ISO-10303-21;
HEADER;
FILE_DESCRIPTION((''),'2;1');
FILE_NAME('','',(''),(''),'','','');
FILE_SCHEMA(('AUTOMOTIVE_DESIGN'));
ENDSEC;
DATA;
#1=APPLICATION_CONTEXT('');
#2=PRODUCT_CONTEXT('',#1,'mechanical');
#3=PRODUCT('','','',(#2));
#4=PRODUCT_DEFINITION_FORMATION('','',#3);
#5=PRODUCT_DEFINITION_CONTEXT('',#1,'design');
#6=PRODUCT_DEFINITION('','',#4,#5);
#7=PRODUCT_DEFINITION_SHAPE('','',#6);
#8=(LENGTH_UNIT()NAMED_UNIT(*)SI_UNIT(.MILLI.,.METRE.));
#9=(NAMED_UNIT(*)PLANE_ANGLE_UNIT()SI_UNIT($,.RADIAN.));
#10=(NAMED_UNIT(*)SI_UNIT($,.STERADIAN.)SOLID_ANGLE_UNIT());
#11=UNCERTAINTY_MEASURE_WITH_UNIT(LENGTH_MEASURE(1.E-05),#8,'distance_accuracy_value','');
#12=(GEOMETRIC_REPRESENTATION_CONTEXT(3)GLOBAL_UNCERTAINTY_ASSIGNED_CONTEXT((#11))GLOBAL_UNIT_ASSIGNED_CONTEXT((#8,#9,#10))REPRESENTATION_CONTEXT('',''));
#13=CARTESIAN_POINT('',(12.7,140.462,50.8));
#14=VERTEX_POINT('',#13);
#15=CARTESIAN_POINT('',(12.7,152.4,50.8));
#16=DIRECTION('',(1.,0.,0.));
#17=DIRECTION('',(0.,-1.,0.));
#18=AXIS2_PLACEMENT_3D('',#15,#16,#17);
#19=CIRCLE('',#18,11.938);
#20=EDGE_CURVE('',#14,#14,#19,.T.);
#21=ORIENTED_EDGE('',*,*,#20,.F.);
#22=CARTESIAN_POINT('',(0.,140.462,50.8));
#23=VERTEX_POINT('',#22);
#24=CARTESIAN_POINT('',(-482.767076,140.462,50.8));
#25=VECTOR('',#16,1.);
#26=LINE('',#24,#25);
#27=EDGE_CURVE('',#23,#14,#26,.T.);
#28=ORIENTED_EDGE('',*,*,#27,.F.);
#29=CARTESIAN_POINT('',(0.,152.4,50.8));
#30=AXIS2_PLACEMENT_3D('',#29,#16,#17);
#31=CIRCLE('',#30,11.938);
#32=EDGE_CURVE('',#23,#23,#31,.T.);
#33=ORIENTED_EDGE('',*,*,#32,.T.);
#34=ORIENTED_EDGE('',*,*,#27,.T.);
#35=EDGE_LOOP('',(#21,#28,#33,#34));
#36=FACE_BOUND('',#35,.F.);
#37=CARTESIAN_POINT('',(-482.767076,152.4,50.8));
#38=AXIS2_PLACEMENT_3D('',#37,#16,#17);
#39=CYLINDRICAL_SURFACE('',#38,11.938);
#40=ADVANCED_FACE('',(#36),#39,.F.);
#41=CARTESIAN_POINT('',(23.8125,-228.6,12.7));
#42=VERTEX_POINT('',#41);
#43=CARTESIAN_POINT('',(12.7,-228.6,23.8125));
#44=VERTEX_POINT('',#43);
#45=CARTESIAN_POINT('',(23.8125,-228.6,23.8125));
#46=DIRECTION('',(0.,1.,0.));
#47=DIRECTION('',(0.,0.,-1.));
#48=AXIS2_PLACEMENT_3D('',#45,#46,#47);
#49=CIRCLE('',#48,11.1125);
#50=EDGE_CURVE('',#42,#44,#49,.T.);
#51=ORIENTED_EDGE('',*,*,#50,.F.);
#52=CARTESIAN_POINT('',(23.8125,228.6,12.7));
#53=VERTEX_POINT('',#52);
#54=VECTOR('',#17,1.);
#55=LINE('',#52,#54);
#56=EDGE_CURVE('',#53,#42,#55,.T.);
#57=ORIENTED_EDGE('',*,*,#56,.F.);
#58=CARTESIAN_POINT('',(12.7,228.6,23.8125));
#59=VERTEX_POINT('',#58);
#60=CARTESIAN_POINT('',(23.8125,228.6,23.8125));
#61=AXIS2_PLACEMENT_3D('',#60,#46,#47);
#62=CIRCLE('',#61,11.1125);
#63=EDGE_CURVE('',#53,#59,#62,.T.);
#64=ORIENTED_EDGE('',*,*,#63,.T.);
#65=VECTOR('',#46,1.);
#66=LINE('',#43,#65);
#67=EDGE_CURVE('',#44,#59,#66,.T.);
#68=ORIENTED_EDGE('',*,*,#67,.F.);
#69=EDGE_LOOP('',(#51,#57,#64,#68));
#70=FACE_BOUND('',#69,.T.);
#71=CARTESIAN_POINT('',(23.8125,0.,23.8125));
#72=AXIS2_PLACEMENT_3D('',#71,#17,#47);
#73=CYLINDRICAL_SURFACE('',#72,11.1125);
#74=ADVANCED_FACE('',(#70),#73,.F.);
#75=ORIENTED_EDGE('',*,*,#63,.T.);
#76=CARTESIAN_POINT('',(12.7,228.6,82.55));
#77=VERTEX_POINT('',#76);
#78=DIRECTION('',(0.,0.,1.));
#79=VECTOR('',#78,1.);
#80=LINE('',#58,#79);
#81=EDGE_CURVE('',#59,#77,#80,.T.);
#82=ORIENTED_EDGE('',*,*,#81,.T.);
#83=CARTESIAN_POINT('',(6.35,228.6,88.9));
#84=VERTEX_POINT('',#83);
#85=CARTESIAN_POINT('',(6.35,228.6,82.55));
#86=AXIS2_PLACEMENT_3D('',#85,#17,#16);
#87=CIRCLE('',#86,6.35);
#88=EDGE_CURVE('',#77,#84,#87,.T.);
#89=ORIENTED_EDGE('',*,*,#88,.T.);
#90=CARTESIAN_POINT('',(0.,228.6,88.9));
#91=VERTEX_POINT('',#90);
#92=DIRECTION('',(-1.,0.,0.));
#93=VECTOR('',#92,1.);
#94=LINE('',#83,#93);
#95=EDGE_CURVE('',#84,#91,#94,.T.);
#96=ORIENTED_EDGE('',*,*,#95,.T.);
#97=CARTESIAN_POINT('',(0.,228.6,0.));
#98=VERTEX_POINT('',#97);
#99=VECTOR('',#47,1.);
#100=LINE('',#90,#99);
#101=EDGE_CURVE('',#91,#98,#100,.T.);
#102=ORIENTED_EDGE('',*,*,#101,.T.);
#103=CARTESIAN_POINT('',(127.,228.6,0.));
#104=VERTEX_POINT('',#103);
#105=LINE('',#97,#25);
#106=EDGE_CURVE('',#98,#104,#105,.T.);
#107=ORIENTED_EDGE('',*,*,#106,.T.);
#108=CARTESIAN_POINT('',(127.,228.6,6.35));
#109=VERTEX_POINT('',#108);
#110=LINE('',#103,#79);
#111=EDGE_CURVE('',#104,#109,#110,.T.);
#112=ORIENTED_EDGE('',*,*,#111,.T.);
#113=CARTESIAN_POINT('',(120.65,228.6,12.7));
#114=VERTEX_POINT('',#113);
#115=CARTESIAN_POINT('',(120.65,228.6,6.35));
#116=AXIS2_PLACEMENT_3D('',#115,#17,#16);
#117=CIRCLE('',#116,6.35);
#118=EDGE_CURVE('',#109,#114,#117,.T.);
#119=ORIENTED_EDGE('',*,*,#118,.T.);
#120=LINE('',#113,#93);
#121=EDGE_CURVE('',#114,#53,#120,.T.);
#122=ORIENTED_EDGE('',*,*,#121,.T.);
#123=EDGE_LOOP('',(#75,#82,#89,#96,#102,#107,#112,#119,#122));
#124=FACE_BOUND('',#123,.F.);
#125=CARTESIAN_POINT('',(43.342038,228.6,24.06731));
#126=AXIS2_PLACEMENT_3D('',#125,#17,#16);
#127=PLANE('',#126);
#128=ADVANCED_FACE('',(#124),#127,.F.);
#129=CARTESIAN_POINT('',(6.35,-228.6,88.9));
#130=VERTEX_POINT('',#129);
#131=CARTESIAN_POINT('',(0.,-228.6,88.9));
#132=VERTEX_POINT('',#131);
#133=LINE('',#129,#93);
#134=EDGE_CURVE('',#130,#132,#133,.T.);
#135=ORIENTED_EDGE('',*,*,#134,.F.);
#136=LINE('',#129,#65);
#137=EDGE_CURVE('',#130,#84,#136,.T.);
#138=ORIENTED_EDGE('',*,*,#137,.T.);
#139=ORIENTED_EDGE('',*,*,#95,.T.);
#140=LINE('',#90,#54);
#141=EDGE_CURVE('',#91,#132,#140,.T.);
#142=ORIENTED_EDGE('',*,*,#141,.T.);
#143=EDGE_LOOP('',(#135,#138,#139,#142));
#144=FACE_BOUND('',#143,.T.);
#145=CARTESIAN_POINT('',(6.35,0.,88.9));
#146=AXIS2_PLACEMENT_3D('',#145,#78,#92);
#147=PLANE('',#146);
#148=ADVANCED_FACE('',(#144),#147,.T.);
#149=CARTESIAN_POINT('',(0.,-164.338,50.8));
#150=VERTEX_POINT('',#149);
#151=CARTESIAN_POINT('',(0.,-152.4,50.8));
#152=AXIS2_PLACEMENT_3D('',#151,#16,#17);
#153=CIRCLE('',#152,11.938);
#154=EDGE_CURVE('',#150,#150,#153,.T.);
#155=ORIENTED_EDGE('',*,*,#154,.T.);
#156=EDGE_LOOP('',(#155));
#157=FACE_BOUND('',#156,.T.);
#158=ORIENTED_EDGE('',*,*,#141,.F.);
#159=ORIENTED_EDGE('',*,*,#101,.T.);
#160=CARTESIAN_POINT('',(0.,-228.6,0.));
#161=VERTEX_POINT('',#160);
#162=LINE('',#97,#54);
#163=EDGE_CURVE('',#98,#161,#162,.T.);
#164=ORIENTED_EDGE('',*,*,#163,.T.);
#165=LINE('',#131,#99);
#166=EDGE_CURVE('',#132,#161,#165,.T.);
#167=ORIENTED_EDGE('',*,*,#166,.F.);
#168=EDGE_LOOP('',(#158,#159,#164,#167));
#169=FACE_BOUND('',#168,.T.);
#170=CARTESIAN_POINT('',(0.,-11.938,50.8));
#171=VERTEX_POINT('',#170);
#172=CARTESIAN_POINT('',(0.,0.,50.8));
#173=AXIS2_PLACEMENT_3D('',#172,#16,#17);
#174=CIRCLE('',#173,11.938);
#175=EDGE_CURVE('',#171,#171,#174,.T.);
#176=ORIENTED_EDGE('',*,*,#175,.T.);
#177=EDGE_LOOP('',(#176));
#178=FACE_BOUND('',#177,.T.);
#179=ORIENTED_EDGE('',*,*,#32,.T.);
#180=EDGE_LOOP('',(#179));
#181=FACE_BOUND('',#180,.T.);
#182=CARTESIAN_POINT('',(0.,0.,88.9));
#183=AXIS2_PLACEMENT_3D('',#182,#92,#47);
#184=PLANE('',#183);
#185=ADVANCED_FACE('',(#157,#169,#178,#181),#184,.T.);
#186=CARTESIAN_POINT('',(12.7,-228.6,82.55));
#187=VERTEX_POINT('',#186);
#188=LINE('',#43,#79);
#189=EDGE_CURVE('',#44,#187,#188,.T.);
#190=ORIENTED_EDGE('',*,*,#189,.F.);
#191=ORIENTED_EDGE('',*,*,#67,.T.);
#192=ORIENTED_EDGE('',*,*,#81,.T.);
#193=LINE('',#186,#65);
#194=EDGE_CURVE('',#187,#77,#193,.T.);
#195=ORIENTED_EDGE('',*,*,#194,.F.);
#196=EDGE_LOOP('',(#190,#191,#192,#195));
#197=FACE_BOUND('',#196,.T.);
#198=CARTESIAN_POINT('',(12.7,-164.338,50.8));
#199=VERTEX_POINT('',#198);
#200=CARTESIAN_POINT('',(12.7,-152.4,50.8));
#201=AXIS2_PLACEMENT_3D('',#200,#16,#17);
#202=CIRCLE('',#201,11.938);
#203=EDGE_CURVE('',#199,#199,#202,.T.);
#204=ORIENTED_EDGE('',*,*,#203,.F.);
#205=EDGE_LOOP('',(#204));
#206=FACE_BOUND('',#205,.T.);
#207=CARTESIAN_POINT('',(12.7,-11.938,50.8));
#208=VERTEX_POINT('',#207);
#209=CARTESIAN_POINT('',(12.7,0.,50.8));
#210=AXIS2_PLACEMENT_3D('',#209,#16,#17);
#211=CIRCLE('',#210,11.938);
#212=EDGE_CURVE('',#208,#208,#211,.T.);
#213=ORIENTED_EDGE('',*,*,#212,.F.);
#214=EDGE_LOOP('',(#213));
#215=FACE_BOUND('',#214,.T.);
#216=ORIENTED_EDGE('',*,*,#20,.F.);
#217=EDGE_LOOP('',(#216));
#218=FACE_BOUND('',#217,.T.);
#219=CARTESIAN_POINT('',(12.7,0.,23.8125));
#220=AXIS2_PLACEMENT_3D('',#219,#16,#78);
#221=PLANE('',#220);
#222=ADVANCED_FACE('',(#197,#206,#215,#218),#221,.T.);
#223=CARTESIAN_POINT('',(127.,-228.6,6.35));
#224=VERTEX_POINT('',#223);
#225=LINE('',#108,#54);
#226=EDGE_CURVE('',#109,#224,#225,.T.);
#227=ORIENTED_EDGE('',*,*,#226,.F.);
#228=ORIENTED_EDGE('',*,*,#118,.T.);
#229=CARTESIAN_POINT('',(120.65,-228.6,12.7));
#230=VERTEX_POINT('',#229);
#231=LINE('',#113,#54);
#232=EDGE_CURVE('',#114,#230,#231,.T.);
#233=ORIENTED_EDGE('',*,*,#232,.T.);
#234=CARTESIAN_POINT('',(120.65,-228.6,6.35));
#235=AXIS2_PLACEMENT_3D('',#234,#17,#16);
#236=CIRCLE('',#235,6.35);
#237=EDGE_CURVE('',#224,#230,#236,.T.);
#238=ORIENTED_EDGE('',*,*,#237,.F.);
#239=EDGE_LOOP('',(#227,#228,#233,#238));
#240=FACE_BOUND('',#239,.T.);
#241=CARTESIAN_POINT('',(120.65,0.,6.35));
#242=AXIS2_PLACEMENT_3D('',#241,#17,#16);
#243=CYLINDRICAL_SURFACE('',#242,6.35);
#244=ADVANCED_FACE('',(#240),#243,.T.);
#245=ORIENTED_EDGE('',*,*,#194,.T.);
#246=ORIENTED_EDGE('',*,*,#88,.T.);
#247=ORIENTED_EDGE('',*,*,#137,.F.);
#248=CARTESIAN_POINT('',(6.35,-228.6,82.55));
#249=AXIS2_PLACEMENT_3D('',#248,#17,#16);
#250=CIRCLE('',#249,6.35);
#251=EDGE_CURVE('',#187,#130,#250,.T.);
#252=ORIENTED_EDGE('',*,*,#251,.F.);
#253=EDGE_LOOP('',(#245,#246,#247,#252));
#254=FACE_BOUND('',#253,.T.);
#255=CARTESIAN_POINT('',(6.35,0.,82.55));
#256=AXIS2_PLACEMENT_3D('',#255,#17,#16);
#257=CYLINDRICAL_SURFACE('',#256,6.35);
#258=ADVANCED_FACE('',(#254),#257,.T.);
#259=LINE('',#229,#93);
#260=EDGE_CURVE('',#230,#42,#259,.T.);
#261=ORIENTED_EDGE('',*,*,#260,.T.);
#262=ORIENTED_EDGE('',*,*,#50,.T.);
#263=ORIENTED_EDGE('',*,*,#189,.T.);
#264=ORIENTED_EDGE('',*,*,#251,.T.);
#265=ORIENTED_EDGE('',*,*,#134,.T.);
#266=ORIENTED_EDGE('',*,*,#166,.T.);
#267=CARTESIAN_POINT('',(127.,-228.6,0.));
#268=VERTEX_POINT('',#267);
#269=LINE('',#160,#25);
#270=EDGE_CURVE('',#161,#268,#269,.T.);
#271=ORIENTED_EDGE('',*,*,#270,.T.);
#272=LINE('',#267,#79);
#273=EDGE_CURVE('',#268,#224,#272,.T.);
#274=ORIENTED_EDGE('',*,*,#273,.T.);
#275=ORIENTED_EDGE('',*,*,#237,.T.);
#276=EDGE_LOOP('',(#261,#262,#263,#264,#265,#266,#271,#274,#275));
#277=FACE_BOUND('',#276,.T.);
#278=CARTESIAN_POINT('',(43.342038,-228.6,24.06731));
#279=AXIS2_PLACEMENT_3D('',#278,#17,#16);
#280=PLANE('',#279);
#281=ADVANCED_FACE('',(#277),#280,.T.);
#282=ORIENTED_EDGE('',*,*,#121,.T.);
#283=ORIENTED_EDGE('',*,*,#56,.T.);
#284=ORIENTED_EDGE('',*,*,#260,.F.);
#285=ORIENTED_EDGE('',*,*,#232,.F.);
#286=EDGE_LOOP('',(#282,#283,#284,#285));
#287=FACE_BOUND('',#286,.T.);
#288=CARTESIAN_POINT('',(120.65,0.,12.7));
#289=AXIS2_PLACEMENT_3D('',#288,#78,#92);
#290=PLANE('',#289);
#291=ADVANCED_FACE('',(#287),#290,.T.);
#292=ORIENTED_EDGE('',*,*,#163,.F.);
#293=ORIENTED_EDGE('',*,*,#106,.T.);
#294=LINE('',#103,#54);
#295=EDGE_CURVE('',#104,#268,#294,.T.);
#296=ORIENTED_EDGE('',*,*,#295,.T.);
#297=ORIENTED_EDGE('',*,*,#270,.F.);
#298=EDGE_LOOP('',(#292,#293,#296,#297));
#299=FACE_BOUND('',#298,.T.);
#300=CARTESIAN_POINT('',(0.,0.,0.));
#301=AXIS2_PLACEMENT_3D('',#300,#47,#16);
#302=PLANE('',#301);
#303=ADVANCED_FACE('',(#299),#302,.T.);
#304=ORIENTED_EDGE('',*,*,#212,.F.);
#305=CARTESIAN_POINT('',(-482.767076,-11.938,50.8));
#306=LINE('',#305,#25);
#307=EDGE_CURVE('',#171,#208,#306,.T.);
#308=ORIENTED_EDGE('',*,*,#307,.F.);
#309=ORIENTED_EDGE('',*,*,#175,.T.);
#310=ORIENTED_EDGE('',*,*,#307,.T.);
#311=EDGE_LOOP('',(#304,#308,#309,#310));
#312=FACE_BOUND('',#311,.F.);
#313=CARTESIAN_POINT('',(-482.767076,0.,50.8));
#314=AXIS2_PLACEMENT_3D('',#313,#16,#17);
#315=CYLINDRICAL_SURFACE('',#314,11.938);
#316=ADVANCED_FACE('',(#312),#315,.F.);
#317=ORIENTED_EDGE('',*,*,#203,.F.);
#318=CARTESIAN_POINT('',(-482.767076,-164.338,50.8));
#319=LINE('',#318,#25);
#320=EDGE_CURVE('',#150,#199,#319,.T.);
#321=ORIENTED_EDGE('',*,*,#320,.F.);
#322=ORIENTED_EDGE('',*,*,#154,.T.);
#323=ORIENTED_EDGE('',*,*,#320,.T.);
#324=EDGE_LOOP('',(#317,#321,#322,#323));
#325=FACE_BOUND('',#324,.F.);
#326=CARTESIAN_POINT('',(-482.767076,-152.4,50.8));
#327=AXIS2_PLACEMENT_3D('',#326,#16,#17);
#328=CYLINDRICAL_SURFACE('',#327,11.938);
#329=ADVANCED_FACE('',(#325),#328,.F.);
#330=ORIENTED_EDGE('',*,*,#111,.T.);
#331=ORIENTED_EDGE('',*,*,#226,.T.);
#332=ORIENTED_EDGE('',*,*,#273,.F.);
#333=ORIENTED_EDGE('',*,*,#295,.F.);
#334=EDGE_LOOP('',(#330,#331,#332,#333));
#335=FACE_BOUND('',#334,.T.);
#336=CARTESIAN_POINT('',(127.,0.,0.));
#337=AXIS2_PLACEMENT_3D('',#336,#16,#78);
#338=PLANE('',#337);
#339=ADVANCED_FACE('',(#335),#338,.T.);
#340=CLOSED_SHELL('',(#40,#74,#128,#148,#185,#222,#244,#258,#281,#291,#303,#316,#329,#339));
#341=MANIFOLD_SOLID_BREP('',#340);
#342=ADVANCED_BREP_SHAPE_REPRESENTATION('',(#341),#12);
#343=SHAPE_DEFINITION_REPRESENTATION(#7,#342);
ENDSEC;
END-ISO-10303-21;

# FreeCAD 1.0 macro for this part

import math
import FreeCAD as App
import Part
import Sketcher
Q = App.Units.Quantity

doc = App.newDocument("Part")
params = doc.addObject("Spreadsheet::Sheet", "Params")
for row, (alias, value) in enumerate([
    ("sketch1_width", "5 in"),
    ("sketch1_radius", "0.25 in"),
    ("sketch1_height", "3.5 in"),
    ("sketch1_radius2", "0.4375 in"),
    ("pad1_length", "18 in"),
    ("sketch2_diameter", "0.94 in"),
    ("hole_diameter", "0.94 in"),
], start=1):
    params.set(f"A{row}", alias)
    params.set(f"B{row}", "=" + value)
    params.setAlias(f"B{row}", alias)

body = doc.addObject("PartDesign::Body", "Body")

sketch1 = body.newObject("Sketcher::SketchObject", "Sketch")
sketch1.AttachmentSupport = (doc.getObject("XZ_Plane"), [""])
sketch1.MapMode = "FlatFace"
sketch1.addGeometry([
    Part.LineSegment(App.Vector(6, 89, 0), App.Vector(0, 89, 0)),
    Part.LineSegment(App.Vector(0, 89, 0), App.Vector(0, 0, 0)),
    Part.LineSegment(App.Vector(0, 0, 0), App.Vector(127, 0, 0)),
    Part.LineSegment(App.Vector(127, 0, 0), App.Vector(127, 6, 0)),
    Part.ArcOfCircle(Part.Circle(App.Vector(121, 6, 0), App.Vector(0, 0, 1), 6), math.radians(0), math.radians(90)),
    Part.LineSegment(App.Vector(121, 13, 0), App.Vector(24, 13, 0)),
    Part.ArcOfCircle(Part.Circle(App.Vector(24, 24, 0), App.Vector(0, 0, 1), 11), math.radians(180), math.radians(270)),
    Part.LineSegment(App.Vector(13, 24, 0), App.Vector(13, 83, 0)),
    Part.ArcOfCircle(Part.Circle(App.Vector(6, 83, 0), App.Vector(0, 0, 1), 6), math.radians(0), math.radians(90)),
], False)
sketch1.addConstraint([
    Sketcher.Constraint("Coincident", 0, 2, 1, 1),
    Sketcher.Constraint("Coincident", 1, 2, 2, 1),
    Sketcher.Constraint("Coincident", 2, 2, 3, 1),
    Sketcher.Constraint("Tangent", 3, 2, 4, 1),
    Sketcher.Constraint("Tangent", 4, 2, 5, 1),
    Sketcher.Constraint("Tangent", 5, 2, 6, 2),
    Sketcher.Constraint("Tangent", 6, 1, 7, 1),
    Sketcher.Constraint("Tangent", 7, 2, 8, 1),
    Sketcher.Constraint("Tangent", 8, 2, 0, 1),
    Sketcher.Constraint("Horizontal", 0),
    Sketcher.Constraint("Vertical", 1),
    Sketcher.Constraint("Horizontal", 2),
    Sketcher.Constraint("Vertical", 3),
    Sketcher.Constraint("Horizontal", 5),
    Sketcher.Constraint("Vertical", 7),
    Sketcher.Constraint("Coincident", 1, 2, -1, 1),
    Sketcher.Constraint("Equal", 4, 8),
    Sketcher.Constraint("Equal", 0, 3),
    Sketcher.Constraint("DistanceX", 2, 1, 2, 2, Q("5 in")),
    Sketcher.Constraint("Radius", 4, Q("0.25 in")),
    Sketcher.Constraint("DistanceY", 1, 2, 1, 1, Q("3.5 in")),
    Sketcher.Constraint("Radius", 6, Q("0.4375 in")),
    Sketcher.Constraint("DistanceY", 4, 3, 8, 3, Q("3 in")),
])
sketch1.setExpression("Constraints[18]", "Params.sketch1_width")
sketch1.setExpression("Constraints[19]", "Params.sketch1_radius")
sketch1.setExpression("Constraints[20]", "Params.sketch1_height")
sketch1.setExpression("Constraints[21]", "Params.sketch1_radius2")
pad1 = body.newObject("PartDesign::Pad", "Pad")
pad1.Profile = sketch1
pad1.setExpression("Length", "Params.pad1_length")
pad1.Midplane = True

sketch2 = body.newObject("Sketcher::SketchObject", "Sketch001")
sketch2.AttachmentSupport = (doc.getObject("YZ_Plane"), [""])
sketch2.MapMode = "FlatFace"
sketch2.addGeometry([
    Part.Circle(App.Vector(-152, 51, 0), App.Vector(0, 0, 1), 12),
    Part.Circle(App.Vector(0, 51, 0), App.Vector(0, 0, 1), 12),
    Part.Circle(App.Vector(152, 51, 0), App.Vector(0, 0, 1), 12),
], False)
sketch2.addConstraint([
    Sketcher.Constraint("Equal", 0, 1),
    Sketcher.Constraint("Equal", 1, 2),
    Sketcher.Constraint("Symmetric", 0, 3, 2, 3, -2),
    Sketcher.Constraint("PointOnObject", 1, 3, -2),
    Sketcher.Constraint("Horizontal", 0, 3, 1, 3),
    Sketcher.Constraint("Diameter", 0, Q("0.94 in")),
    Sketcher.Constraint("DistanceX", 0, 3, -1, 1, Q("6 in")),
    Sketcher.Constraint("DistanceY", -1, 1, 0, 3, Q("2 in")),
])
sketch2.setExpression("Constraints[5]", "Params.sketch2_diameter")
doc.recompute()
hole = body.newObject("PartDesign::Hole", "Hole")
hole.Profile = sketch2
hole.ThreadType = "None"
hole.setExpression("Diameter", "Params.hole_diameter")
hole.DepthType = "ThroughAll"
hole.Reversed = True

doc.recompute()
